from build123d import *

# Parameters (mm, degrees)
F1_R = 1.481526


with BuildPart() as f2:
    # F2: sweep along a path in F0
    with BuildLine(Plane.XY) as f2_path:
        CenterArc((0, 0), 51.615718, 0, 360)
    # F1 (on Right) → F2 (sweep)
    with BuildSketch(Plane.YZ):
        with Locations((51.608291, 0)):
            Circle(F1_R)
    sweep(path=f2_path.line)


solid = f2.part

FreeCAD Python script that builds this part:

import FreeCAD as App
import Part
import Sketcher
Q = App.Units.Quantity

doc = App.newDocument("Part")
body = doc.addObject("PartDesign::Body", "Body")

sketch1 = body.newObject("Sketcher::SketchObject", "Sketch")
sketch1.AttachmentSupport = (doc.getObject("YZ_Plane"), [""])
sketch1.MapMode = "FlatFace"
sketch1.addGeometry(Part.Circle(App.Vector(51.608291, 0, 0), App.Vector(0, 0, 1), 1.481526), False)
sketch1.addConstraint([
    Sketcher.Constraint("PointOnObject", 0, 3, -1),
    Sketcher.Constraint("Diameter", 0, Q("2.963052 mm")),
    Sketcher.Constraint("DistanceX", -1, 1, 0, 3, Q("51.608291 mm")),
])

sketch2 = body.newObject("Sketcher::SketchObject", "Sketch001")
sketch2.AttachmentSupport = (doc.getObject("XY_Plane"), [""])
sketch2.MapMode = "FlatFace"
sketch2.addGeometry(Part.Circle(App.Vector(0, 0, 0), App.Vector(0, 0, 1), 51.615718), False)
sketch2.addConstraint([
    Sketcher.Constraint("Coincident", 0, 3, -1, 1),
    Sketcher.Constraint("Diameter", 0, Q("103.231436 mm")),
])
doc.recompute()

additivepipe = body.newObject("PartDesign::AdditivePipe", "AdditivePipe")
additivepipe.Profile = sketch1
additivepipe.Spine = (sketch2, ["Edge1"])

doc.recompute()
